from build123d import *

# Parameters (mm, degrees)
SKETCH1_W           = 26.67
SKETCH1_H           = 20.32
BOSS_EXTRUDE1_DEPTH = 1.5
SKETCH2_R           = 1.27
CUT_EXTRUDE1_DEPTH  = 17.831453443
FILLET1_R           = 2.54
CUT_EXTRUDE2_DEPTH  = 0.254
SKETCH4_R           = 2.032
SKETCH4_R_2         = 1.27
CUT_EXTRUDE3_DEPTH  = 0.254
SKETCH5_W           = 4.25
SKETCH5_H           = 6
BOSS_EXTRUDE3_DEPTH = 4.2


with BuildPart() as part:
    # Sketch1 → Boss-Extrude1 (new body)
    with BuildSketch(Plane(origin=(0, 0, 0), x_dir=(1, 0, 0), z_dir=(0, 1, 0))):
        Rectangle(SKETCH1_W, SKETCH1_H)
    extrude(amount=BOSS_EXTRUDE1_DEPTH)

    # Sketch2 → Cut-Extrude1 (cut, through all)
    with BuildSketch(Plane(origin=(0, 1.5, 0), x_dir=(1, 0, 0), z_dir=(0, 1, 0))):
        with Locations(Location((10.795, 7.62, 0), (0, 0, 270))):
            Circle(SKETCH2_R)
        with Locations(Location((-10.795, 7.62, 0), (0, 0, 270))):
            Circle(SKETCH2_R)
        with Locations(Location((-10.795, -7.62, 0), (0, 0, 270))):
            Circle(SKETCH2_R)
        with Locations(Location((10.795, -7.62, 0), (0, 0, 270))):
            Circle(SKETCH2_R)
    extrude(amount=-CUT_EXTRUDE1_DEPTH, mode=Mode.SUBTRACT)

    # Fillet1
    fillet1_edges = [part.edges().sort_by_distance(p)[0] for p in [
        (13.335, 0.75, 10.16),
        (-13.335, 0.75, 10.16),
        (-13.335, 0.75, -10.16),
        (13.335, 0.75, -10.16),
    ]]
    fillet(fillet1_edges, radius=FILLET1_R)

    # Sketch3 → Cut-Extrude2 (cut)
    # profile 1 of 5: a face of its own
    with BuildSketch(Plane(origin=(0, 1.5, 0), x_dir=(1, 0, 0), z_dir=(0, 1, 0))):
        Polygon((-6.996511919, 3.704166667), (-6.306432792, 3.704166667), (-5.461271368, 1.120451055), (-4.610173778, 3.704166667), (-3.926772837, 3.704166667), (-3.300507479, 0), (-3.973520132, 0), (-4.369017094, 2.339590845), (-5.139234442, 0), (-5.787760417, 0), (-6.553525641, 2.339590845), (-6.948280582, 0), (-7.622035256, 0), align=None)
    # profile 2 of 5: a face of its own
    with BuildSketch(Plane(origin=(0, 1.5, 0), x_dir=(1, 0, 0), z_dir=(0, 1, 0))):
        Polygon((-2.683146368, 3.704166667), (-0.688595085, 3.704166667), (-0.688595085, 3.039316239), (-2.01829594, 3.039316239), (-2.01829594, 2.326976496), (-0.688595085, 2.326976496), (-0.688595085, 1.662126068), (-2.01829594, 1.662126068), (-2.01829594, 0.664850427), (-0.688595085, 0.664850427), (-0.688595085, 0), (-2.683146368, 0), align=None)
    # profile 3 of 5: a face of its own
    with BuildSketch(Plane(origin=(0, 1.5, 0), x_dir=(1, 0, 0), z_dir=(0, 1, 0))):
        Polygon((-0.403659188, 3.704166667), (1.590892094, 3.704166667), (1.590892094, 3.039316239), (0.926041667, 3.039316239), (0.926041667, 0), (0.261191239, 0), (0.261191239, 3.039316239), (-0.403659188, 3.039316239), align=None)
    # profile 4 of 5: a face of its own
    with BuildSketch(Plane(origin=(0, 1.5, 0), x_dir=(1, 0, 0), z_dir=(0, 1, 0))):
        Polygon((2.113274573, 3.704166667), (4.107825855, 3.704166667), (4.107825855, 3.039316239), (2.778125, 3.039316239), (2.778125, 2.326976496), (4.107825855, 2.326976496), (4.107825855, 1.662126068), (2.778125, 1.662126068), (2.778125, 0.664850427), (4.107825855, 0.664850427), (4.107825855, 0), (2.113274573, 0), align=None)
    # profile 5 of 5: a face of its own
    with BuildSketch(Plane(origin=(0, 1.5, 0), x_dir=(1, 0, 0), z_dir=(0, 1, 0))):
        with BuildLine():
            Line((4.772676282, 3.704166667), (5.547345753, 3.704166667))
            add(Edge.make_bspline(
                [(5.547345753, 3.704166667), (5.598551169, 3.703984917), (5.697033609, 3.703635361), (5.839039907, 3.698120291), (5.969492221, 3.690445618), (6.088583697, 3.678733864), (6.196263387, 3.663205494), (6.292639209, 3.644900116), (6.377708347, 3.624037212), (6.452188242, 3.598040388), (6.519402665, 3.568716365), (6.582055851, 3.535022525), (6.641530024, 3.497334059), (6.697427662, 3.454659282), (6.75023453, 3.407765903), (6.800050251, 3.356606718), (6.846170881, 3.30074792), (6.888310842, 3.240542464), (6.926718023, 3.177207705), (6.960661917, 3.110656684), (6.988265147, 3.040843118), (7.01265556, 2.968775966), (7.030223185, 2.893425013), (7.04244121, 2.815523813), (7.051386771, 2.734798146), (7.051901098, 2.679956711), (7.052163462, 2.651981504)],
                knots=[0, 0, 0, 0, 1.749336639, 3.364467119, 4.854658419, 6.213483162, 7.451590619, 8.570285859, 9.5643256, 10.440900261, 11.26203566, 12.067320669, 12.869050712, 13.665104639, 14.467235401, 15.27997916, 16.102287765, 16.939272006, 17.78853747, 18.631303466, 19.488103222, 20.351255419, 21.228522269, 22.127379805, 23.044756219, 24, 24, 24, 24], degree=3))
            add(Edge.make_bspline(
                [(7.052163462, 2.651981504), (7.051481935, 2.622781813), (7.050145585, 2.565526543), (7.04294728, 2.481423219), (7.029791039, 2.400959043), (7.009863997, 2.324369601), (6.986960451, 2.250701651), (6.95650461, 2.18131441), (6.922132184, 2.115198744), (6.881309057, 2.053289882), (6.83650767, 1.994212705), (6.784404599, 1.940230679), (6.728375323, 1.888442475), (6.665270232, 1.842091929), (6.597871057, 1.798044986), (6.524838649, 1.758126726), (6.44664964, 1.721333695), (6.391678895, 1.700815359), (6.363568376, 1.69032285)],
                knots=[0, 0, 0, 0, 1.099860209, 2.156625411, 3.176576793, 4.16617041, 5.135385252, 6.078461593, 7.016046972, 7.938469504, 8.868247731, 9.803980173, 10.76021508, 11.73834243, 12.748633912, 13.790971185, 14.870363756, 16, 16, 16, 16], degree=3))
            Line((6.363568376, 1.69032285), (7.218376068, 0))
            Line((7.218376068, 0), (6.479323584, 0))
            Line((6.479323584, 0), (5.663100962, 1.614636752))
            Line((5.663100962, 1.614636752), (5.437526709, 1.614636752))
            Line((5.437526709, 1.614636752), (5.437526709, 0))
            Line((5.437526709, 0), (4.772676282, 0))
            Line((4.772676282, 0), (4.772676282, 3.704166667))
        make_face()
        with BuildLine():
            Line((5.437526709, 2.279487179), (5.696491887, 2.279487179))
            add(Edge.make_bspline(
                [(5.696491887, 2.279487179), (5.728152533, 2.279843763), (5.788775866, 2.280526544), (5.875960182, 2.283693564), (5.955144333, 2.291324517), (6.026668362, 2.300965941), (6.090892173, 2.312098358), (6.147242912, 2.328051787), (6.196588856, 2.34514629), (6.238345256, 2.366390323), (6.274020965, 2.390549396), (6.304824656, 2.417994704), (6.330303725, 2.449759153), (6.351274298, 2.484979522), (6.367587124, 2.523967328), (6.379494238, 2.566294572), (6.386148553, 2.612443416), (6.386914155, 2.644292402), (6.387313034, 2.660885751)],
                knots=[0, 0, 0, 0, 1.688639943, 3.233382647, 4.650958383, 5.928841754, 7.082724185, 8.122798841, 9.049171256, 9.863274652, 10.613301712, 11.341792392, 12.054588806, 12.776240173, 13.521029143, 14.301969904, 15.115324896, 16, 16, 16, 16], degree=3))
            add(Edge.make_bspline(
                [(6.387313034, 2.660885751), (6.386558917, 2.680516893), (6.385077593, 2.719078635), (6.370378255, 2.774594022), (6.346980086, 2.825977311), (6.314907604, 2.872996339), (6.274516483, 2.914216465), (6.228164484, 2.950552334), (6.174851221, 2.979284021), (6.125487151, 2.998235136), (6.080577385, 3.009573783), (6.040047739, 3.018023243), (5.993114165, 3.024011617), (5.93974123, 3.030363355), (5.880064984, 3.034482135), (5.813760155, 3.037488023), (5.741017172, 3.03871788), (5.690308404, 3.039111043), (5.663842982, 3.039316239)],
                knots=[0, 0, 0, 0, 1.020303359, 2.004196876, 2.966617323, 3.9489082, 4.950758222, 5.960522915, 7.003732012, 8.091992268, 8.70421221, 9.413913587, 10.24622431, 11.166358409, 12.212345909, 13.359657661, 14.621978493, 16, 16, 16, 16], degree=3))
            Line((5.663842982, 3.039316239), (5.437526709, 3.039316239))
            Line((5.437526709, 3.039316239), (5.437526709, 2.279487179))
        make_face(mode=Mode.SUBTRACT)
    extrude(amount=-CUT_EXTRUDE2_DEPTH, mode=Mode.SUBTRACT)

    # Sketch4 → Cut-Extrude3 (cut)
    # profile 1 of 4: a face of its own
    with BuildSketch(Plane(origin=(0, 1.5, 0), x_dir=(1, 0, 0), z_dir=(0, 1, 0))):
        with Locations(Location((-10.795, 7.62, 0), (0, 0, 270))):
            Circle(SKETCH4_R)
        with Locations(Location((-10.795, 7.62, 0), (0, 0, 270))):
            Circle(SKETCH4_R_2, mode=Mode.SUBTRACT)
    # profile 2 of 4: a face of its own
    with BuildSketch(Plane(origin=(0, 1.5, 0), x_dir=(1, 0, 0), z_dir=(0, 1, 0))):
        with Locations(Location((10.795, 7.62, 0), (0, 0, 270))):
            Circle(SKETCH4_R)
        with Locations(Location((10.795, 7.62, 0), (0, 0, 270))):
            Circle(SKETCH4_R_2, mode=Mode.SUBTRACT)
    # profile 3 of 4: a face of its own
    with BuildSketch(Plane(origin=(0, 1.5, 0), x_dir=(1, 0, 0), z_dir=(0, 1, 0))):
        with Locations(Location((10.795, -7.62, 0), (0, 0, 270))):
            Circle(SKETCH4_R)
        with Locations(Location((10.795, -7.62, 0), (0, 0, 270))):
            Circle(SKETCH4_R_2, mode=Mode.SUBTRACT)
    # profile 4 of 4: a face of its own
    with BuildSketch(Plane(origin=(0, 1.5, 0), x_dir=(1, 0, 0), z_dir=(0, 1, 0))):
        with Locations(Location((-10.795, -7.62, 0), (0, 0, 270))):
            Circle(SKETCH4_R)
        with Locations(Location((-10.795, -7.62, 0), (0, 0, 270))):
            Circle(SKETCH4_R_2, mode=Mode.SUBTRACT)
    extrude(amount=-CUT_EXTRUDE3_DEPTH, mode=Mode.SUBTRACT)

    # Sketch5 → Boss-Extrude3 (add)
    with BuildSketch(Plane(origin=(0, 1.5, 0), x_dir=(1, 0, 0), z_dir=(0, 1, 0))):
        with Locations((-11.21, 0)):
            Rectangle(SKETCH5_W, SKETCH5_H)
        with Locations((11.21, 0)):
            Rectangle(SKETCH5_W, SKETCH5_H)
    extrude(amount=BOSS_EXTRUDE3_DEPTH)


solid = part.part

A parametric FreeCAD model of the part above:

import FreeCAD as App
import Part
import Sketcher
Q = App.Units.Quantity


def edges_at(feature, points):
    """Names of the edges that pass closest to the given points."""
    edges = feature.Shape.Edges
    near = lambda p: min(range(len(edges)), key=lambda i: edges[i].distToShape(Part.Vertex(*p))[0])
    return sorted({f"Edge{near(p) + 1}" for p in points})


def add_polygon(sketch, points):
    """Adds a closed chain of lines whose ends are joined by coincident constraints."""
    first, n = sketch.GeometryCount, len(points)
    for a, b in zip(points, points[1:] + points[:1]):
        sketch.addGeometry(Part.LineSegment(App.Vector(*a, 0), App.Vector(*b, 0)), False)
    for i in range(n):
        sketch.addConstraint(Sketcher.Constraint("Coincident", first + i, 2, first + (i + 1) % n, 1))

doc = App.newDocument("Part")
params = doc.addObject("Spreadsheet::Sheet", "Params")
for row, (alias, value) in enumerate([
    ("sketch1_height", "0.8 in"),
    ("sketch1_width", "1.05 in"),
    ("pad1_length", "1.5 mm"),
    ("sketch2_diameter", "0.1 in"),
    ("fillet_radius", "0.1 in"),
    ("pocket2_length", "0.01 in"),
    ("sketch4_diameter", "0.1 in"),
    ("sketch4_diameter2", "0.16 in"),
    ("pocket3_length", "0.01 in"),
    ("pad2_length", "4.2 mm"),
], start=1):
    params.set(f"A{row}", alias)
    params.set(f"B{row}", "=" + value)
    params.setAlias(f"B{row}", alias)

body = doc.addObject("PartDesign::Body", "Body")

sketch1 = doc.addObject("Sketcher::SketchObject", "Sketch")
body.addObject(sketch1)
sketch1.AttachmentSupport = (doc.XZ_Plane, [""])
sketch1.MapMode = "FlatFace"
add_polygon(sketch1, [(-13, -10), (-13, 10), (13, 10), (13, -10)])
sketch1.addConstraint(Sketcher.Constraint("Vertical", 0))
sketch1.addConstraint(Sketcher.Constraint("Horizontal", 1))
sketch1.addConstraint(Sketcher.Constraint("Vertical", 2))
sketch1.addConstraint(Sketcher.Constraint("Horizontal", 3))
sketch1.addConstraint(Sketcher.Constraint("Symmetric", 0, 2, 2, 2, -1, 1))
sketch1.addConstraint(Sketcher.Constraint("DistanceY", 0, 1, 0, 2, Q("0.8 in")))
sketch1.addConstraint(Sketcher.Constraint("DistanceX", 1, 1, 1, 2, Q("1.05 in")))
sketch1.setExpression("Constraints[9]", "Params.sketch1_height")
sketch1.setExpression("Constraints[10]", "Params.sketch1_width")
pad1 = doc.addObject("PartDesign::Pad", "Pad")
body.addObject(pad1)
pad1.Profile = sketch1
pad1.setExpression("Length", "Params.pad1_length")
pad1.Reversed = True

sketch2 = doc.addObject("Sketcher::SketchObject", "Sketch001")
body.addObject(sketch2)
sketch2.AttachmentSupport = (doc.XZ_Plane, [""])
sketch2.MapMode = "FlatFace"
sketch2.AttachmentOffset = App.Placement(App.Vector(0, 0, -1.5), App.Rotation())
sketch2.addGeometry(Part.Circle(App.Vector(10.8, -7.6, 0), App.Vector(0, 0, 1), 1.3), False)
sketch2.addGeometry(Part.Circle(App.Vector(-10.8, -7.6, 0), App.Vector(0, 0, 1), 1.3), False)
sketch2.addGeometry(Part.Circle(App.Vector(-10.8, 7.6, 0), App.Vector(0, 0, 1), 1.3), False)
sketch2.addGeometry(Part.Circle(App.Vector(10.8, 7.6, 0), App.Vector(0, 0, 1), 1.3), False)
sketch2.addConstraint(Sketcher.Constraint("Equal", 0, 1))
sketch2.addConstraint(Sketcher.Constraint("Equal", 1, 2))
sketch2.addConstraint(Sketcher.Constraint("Equal", 2, 3))
sketch2.addConstraint(Sketcher.Constraint("Symmetric", 0, 3, 2, 3, -1, 1))
sketch2.addConstraint(Sketcher.Constraint("Symmetric", 1, 3, 3, 3, -1, 1))
sketch2.addConstraint(Sketcher.Constraint("Symmetric", 0, 3, 1, 3, -2))
sketch2.addConstraint(Sketcher.Constraint("Diameter", 0, Q("0.1 in")))
sketch2.addConstraint(Sketcher.Constraint("DistanceY", 0, 3, -1, 1, Q("0.3 in")))
sketch2.addConstraint(Sketcher.Constraint("DistanceX", 1, 3, 0, 3, Q("0.85 in")))
sketch2.setExpression("Constraints[6]", "Params.sketch2_diameter")
pocket1 = doc.addObject("PartDesign::Pocket", "Pocket")
body.addObject(pocket1)
pocket1.Profile = sketch2
pocket1.Type = "ThroughAll"
pocket1.Reversed = True
doc.recompute()

fillet = doc.addObject("PartDesign::Fillet", "Fillet")
body.addObject(fillet)
fillet.Base = (pocket1, edges_at(pocket1, [
    (13.335, 0.75, 10.16),
    (-13.335, 0.75, 10.16),
    (-13.335, 0.75, -10.16),
    (13.335, 0.75, -10.16),
]))
fillet.setExpression("Radius", "Params.fillet_radius")

sketch3 = doc.addObject("Sketcher::SketchObject", "Sketch002")
body.addObject(sketch3)
sketch3.AttachmentSupport = (doc.XZ_Plane, [""])
sketch3.MapMode = "FlatFace"
sketch3.AttachmentOffset = App.Placement(App.Vector(0, 0, -1.5), App.Rotation())
add_polygon(sketch3, [(-6.306433, -3.704167), (-6.996512, -3.704167), (-7.622035, 0), (-6.948281, 0), (-6.553526, -2.339591), (-5.78776, 0), (-5.139234, 0), (-4.369017, -2.339591), (-3.97352, 0), (-3.300507, 0), (-3.926773, -3.704167), (-4.610174, -3.704167), (-5.461271, -1.120451)])
add_polygon(sketch3, [(-0.688595, -3.704167), (-2.683146, -3.704167), (-2.683146, 0), (-0.688595, 0), (-0.688595, -0.66485), (-2.018296, -0.66485), (-2.018296, -1.662126), (-0.688595, -1.662126), (-0.688595, -2.326976), (-2.018296, -2.326976), (-2.018296, -3.039316), (-0.688595, -3.039316)])
add_polygon(sketch3, [(1.590892, -3.704167), (-0.403659, -3.704167), (-0.403659, -3.039316), (0.261191, -3.039316), (0.261191, 0), (0.926042, 0), (0.926042, -3.039316), (1.590892, -3.039316)])
add_polygon(sketch3, [(4.107826, -3.704167), (2.113275, -3.704167), (2.113275, 0), (4.107826, 0), (4.107826, -0.66485), (2.778125, -0.66485), (2.778125, -1.662126), (4.107826, -1.662126), (4.107826, -2.326976), (2.778125, -2.326976), (2.778125, -3.039316), (4.107826, -3.039316)])
sketch3.addGeometry(Part.LineSegment(App.Vector(5.547346, -3.704167, 0), App.Vector(4.772676, -3.704167, 0)), False)
sketch3.addGeometry(Part.LineSegment(App.Vector(4.772676, -3.704167, 0), App.Vector(4.772676, 0, 0)), False)
sketch3.addGeometry(Part.LineSegment(App.Vector(4.772676, 0, 0), App.Vector(5.437527, 0, 0)), False)
sketch3.addGeometry(Part.LineSegment(App.Vector(5.437527, 0, 0), App.Vector(5.437527, -1.614637, 0)), False)
sketch3.addGeometry(Part.LineSegment(App.Vector(5.437527, -1.614637, 0), App.Vector(5.663101, -1.614637, 0)), False)
sketch3.addGeometry(Part.LineSegment(App.Vector(5.663101, -1.614637, 0), App.Vector(6.479324, 0, 0)), False)
sketch3.addGeometry(Part.LineSegment(App.Vector(6.479324, 0, 0), App.Vector(7.218376, 0, 0)), False)
sketch3.addGeometry(Part.LineSegment(App.Vector(7.218376, 0, 0), App.Vector(6.363568, -1.690323, 0)), False)
sketch3.addGeometry(Part.BSplineCurve([App.Vector(7.052163, -2.651982, 0), App.Vector(7.051482, -2.622782, 0), App.Vector(7.050146, -2.565527, 0), App.Vector(7.042947, -2.481423, 0), App.Vector(7.029791, -2.400959, 0), App.Vector(7.009864, -2.32437, 0), App.Vector(6.98696, -2.250702, 0), App.Vector(6.956505, -2.181314, 0), App.Vector(6.922132, -2.115199, 0), App.Vector(6.881309, -2.05329, 0), App.Vector(6.836508, -1.994213, 0), App.Vector(6.784405, -1.940231, 0), App.Vector(6.728375, -1.888442, 0), App.Vector(6.66527, -1.842092, 0), App.Vector(6.597871, -1.798045, 0), App.Vector(6.524839, -1.758127, 0), App.Vector(6.44665, -1.721334, 0), App.Vector(6.391679, -1.700815, 0), App.Vector(6.363568, -1.690323, 0)], [4, 1, 1, 1, 1, 1, 1, 1, 1, 1, 1, 1, 1, 1, 1, 1, 4], [0, 1.099860209, 2.156625411, 3.176576793, 4.16617041, 5.135385252, 6.078461593, 7.016046972, 7.938469504, 8.868247731, 9.803980173, 10.76021508, 11.73834243, 12.748633912, 13.790971185, 14.870363756, 16], False, 3, [1, 1, 1, 1, 1, 1, 1, 1, 1, 1, 1, 1, 1, 1, 1, 1, 1, 1, 1], False), False)
sketch3.addGeometry(Part.BSplineCurve([App.Vector(5.547346, -3.704167, 0), App.Vector(5.598551, -3.703985, 0), App.Vector(5.697034, -3.703635, 0), App.Vector(5.83904, -3.69812, 0), App.Vector(5.969492, -3.690446, 0), App.Vector(6.088584, -3.678734, 0), App.Vector(6.196263, -3.663205, 0), App.Vector(6.292639, -3.6449, 0), App.Vector(6.377708, -3.624037, 0), App.Vector(6.452188, -3.59804, 0), App.Vector(6.519403, -3.568716, 0), App.Vector(6.582056, -3.535023, 0), App.Vector(6.64153, -3.497334, 0), App.Vector(6.697428, -3.454659, 0), App.Vector(6.750235, -3.407766, 0), App.Vector(6.80005, -3.356607, 0), App.Vector(6.846171, -3.300748, 0), App.Vector(6.888311, -3.240542, 0), App.Vector(6.926718, -3.177208, 0), App.Vector(6.960662, -3.110657, 0), App.Vector(6.988265, -3.040843, 0), App.Vector(7.012656, -2.968776, 0), App.Vector(7.030223, -2.893425, 0), App.Vector(7.042441, -2.815524, 0), App.Vector(7.051387, -2.734798, 0), App.Vector(7.051901, -2.679957, 0), App.Vector(7.052163, -2.651982, 0)], [4, 1, 1, 1, 1, 1, 1, 1, 1, 1, 1, 1, 1, 1, 1, 1, 1, 1, 1, 1, 1, 1, 1, 1, 4], [0, 1.749336639, 3.364467119, 4.854658419, 6.213483162, 7.451590619, 8.570285859, 9.5643256, 10.440900261, 11.26203566, 12.067320669, 12.869050712, 13.665104639, 14.467235401, 15.27997916, 16.102287765, 16.939272006, 17.78853747, 18.631303466, 19.488103222, 20.351255419, 21.228522269, 22.127379805, 23.044756219, 24], False, 3, [1, 1, 1, 1, 1, 1, 1, 1, 1, 1, 1, 1, 1, 1, 1, 1, 1, 1, 1, 1, 1, 1, 1, 1, 1, 1, 1], False), False)
sketch3.addGeometry(Part.LineSegment(App.Vector(5.437527, -2.279487, 0), App.Vector(5.437527, -3.039316, 0)), False)
sketch3.addGeometry(Part.LineSegment(App.Vector(5.437527, -3.039316, 0), App.Vector(5.663843, -3.039316, 0)), False)
sketch3.addGeometry(Part.BSplineCurve([App.Vector(6.387313, -2.660886, 0), App.Vector(6.386559, -2.680517, 0), App.Vector(6.385078, -2.719079, 0), App.Vector(6.370378, -2.774594, 0), App.Vector(6.34698, -2.825977, 0), App.Vector(6.314908, -2.872996, 0), App.Vector(6.274516, -2.914216, 0), App.Vector(6.228164, -2.950552, 0), App.Vector(6.174851, -2.979284, 0), App.Vector(6.125487, -2.998235, 0), App.Vector(6.080577, -3.009574, 0), App.Vector(6.040048, -3.018023, 0), App.Vector(5.993114, -3.024012, 0), App.Vector(5.939741, -3.030363, 0), App.Vector(5.880065, -3.034482, 0), App.Vector(5.81376, -3.037488, 0), App.Vector(5.741017, -3.038718, 0), App.Vector(5.690308, -3.039111, 0), App.Vector(5.663843, -3.039316, 0)], [4, 1, 1, 1, 1, 1, 1, 1, 1, 1, 1, 1, 1, 1, 1, 1, 4], [0, 1.020303359, 2.004196876, 2.966617323, 3.9489082, 4.950758222, 5.960522915, 7.003732012, 8.091992268, 8.70421221, 9.413913587, 10.24622431, 11.166358409, 12.212345909, 13.359657661, 14.621978493, 16], False, 3, [1, 1, 1, 1, 1, 1, 1, 1, 1, 1, 1, 1, 1, 1, 1, 1, 1, 1, 1], False), False)
sketch3.addGeometry(Part.BSplineCurve([App.Vector(5.696492, -2.279487, 0), App.Vector(5.728153, -2.279844, 0), App.Vector(5.788776, -2.280527, 0), App.Vector(5.87596, -2.283694, 0), App.Vector(5.955144, -2.291325, 0), App.Vector(6.026668, -2.300966, 0), App.Vector(6.090892, -2.312098, 0), App.Vector(6.147243, -2.328052, 0), App.Vector(6.196589, -2.345146, 0), App.Vector(6.238345, -2.36639, 0), App.Vector(6.274021, -2.390549, 0), App.Vector(6.304825, -2.417995, 0), App.Vector(6.330304, -2.449759, 0), App.Vector(6.351274, -2.48498, 0), App.Vector(6.367587, -2.523967, 0), App.Vector(6.379494, -2.566295, 0), App.Vector(6.386149, -2.612443, 0), App.Vector(6.386914, -2.644292, 0), App.Vector(6.387313, -2.660886, 0)], [4, 1, 1, 1, 1, 1, 1, 1, 1, 1, 1, 1, 1, 1, 1, 1, 4], [0, 1.688639943, 3.233382647, 4.650958383, 5.928841754, 7.082724185, 8.122798841, 9.049171256, 9.863274652, 10.613301712, 11.341792392, 12.054588806, 12.776240173, 13.521029143, 14.301969904, 15.115324896, 16], False, 3, [1, 1, 1, 1, 1, 1, 1, 1, 1, 1, 1, 1, 1, 1, 1, 1, 1, 1, 1], False), False)
sketch3.addGeometry(Part.LineSegment(App.Vector(5.696492, -2.279487, 0), App.Vector(5.437527, -2.279487, 0)), False)
sketch3.addConstraint(Sketcher.Constraint("Block", 53))
sketch3.addConstraint(Sketcher.Constraint("Block", 54))
sketch3.addConstraint(Sketcher.Constraint("Block", 57))
sketch3.addConstraint(Sketcher.Constraint("Block", 58))
sketch3.addConstraint(Sketcher.Constraint("Coincident", 45, 2, 46, 1))
sketch3.addConstraint(Sketcher.Constraint("Coincident", 46, 2, 47, 1))
sketch3.addConstraint(Sketcher.Constraint("Coincident", 47, 2, 48, 1))
sketch3.addConstraint(Sketcher.Constraint("Coincident", 48, 2, 49, 1))
sketch3.addConstraint(Sketcher.Constraint("Coincident", 49, 2, 50, 1))
sketch3.addConstraint(Sketcher.Constraint("Coincident", 50, 2, 51, 1))
sketch3.addConstraint(Sketcher.Constraint("Coincident", 51, 2, 52, 1))
sketch3.addConstraint(Sketcher.Constraint("Coincident", 52, 2, 53, 2))
sketch3.addConstraint(Sketcher.Constraint("Coincident", 54, 1, 45, 1))
sketch3.addConstraint(Sketcher.Constraint("Coincident", 55, 2, 56, 1))
sketch3.addConstraint(Sketcher.Constraint("Coincident", 56, 2, 57, 2))
sketch3.addConstraint(Sketcher.Constraint("Coincident", 58, 1, 59, 1))
sketch3.addConstraint(Sketcher.Constraint("Coincident", 59, 2, 55, 1))
sketch3.addConstraint(Sketcher.Constraint("Horizontal", 0))
sketch3.addConstraint(Sketcher.Constraint("Horizontal", 2))
sketch3.addConstraint(Sketcher.Constraint("Horizontal", 5))
sketch3.addConstraint(Sketcher.Constraint("Horizontal", 8))
sketch3.addConstraint(Sketcher.Constraint("Horizontal", 10))
sketch3.addConstraint(Sketcher.Constraint("Horizontal", 13))
sketch3.addConstraint(Sketcher.Constraint("Vertical", 14))
sketch3.addConstraint(Sketcher.Constraint("Horizontal", 15))
sketch3.addConstraint(Sketcher.Constraint("Vertical", 16))
sketch3.addConstraint(Sketcher.Constraint("Horizontal", 17))
sketch3.addConstraint(Sketcher.Constraint("Vertical", 18))
sketch3.addConstraint(Sketcher.Constraint("Horizontal", 19))
sketch3.addConstraint(Sketcher.Constraint("Vertical", 20))
sketch3.addConstraint(Sketcher.Constraint("Horizontal", 21))
sketch3.addConstraint(Sketcher.Constraint("Vertical", 22))
sketch3.addConstraint(Sketcher.Constraint("Horizontal", 23))
sketch3.addConstraint(Sketcher.Constraint("Vertical", 24))
sketch3.addConstraint(Sketcher.Constraint("Horizontal", 25))
sketch3.addConstraint(Sketcher.Constraint("Vertical", 26))
sketch3.addConstraint(Sketcher.Constraint("Horizontal", 27))
sketch3.addConstraint(Sketcher.Constraint("Vertical", 28))
sketch3.addConstraint(Sketcher.Constraint("Horizontal", 29))
sketch3.addConstraint(Sketcher.Constraint("Vertical", 30))
sketch3.addConstraint(Sketcher.Constraint("Horizontal", 31))
sketch3.addConstraint(Sketcher.Constraint("Vertical", 32))
sketch3.addConstraint(Sketcher.Constraint("Horizontal", 33))
sketch3.addConstraint(Sketcher.Constraint("Vertical", 34))
sketch3.addConstraint(Sketcher.Constraint("Horizontal", 35))
sketch3.addConstraint(Sketcher.Constraint("Vertical", 36))
sketch3.addConstraint(Sketcher.Constraint("Horizontal", 37))
sketch3.addConstraint(Sketcher.Constraint("Vertical", 38))
sketch3.addConstraint(Sketcher.Constraint("Horizontal", 39))
sketch3.addConstraint(Sketcher.Constraint("Vertical", 40))
sketch3.addConstraint(Sketcher.Constraint("Horizontal", 41))
sketch3.addConstraint(Sketcher.Constraint("Vertical", 42))
sketch3.addConstraint(Sketcher.Constraint("Horizontal", 43))
sketch3.addConstraint(Sketcher.Constraint("Vertical", 44))
sketch3.addConstraint(Sketcher.Constraint("Horizontal", 45))
sketch3.addConstraint(Sketcher.Constraint("Vertical", 46))
sketch3.addConstraint(Sketcher.Constraint("Horizontal", 47))
sketch3.addConstraint(Sketcher.Constraint("Vertical", 48))
sketch3.addConstraint(Sketcher.Constraint("Horizontal", 49))
sketch3.addConstraint(Sketcher.Constraint("Horizontal", 51))
sketch3.addConstraint(Sketcher.Constraint("Vertical", 55))
sketch3.addConstraint(Sketcher.Constraint("Horizontal", 56))
sketch3.addConstraint(Sketcher.Constraint("Horizontal", 59))
sketch3.addConstraint(Sketcher.Constraint("PointOnObject", 1, 2, -1))
sketch3.addConstraint(Sketcher.Constraint("PointOnObject", 4, 2, -1))
sketch3.addConstraint(Sketcher.Constraint("PointOnObject", 7, 2, -1))
sketch3.addConstraint(Sketcher.Constraint("PointOnObject", 14, 2, -1))
sketch3.addConstraint(Sketcher.Constraint("PointOnObject", 28, 2, -1))
sketch3.addConstraint(Sketcher.Constraint("PointOnObject", 34, 2, -1))
sketch3.addConstraint(Sketcher.Constraint("PointOnObject", 46, 2, -1))
sketch3.addConstraint(Sketcher.Constraint("PointOnObject", 50, 2, -1))
sketch3.addConstraint(Sketcher.Constraint("Horizontal", 3, 2, 6, 2))
sketch3.addConstraint(Sketcher.Constraint("Horizontal", 0, 2, 9, 2))
sketch3.addConstraint(Sketcher.Constraint("Horizontal", 12, 2, 13, 2))
sketch3.addConstraint(Sketcher.Constraint("Horizontal", 24, 2, 25, 2))
sketch3.addConstraint(Sketcher.Constraint("Horizontal", 23, 2, 26, 2))
sketch3.addConstraint(Sketcher.Constraint("Horizontal", 27, 2, 30, 2))
sketch3.addConstraint(Sketcher.Constraint("Horizontal", 32, 2, 33, 2))
sketch3.addConstraint(Sketcher.Constraint("Horizontal", 17, 2, 36, 2))
sketch3.addConstraint(Sketcher.Constraint("Horizontal", 19, 2, 38, 2))
sketch3.addConstraint(Sketcher.Constraint("Horizontal", 21, 2, 40, 2))
sketch3.addConstraint(Sketcher.Constraint("Horizontal", 31, 2, 42, 2))
sketch3.addConstraint(Sketcher.Constraint("Horizontal", 44, 2, 45, 2))
sketch3.addConstraint(Sketcher.Constraint("Horizontal", 43, 2, 55, 2))
sketch3.addConstraint(Sketcher.Constraint("Vertical", 16, 2, 19, 2))
sketch3.addConstraint(Sketcher.Constraint("Vertical", 18, 2, 21, 2))
sketch3.addConstraint(Sketcher.Constraint("Vertical", 20, 2, 23, 2))
sketch3.addConstraint(Sketcher.Constraint("Vertical", 36, 2, 39, 2))
sketch3.addConstraint(Sketcher.Constraint("Vertical", 38, 2, 41, 2))
sketch3.addConstraint(Sketcher.Constraint("Vertical", 40, 2, 43, 2))
sketch3.addConstraint(Sketcher.Constraint("Vertical", 48, 2, 55, 2))
sketch3.addConstraint(Sketcher.Constraint("Equal", 15, 25))
sketch3.addConstraint(Sketcher.Constraint("Equal", 27, 29))
sketch3.addConstraint(Sketcher.Constraint("Equal", 29, 31))
sketch3.addConstraint(Sketcher.Constraint("Equal", 25, 33))
sketch3.addConstraint(Sketcher.Constraint("Equal", 23, 37))
sketch3.addConstraint(Sketcher.Constraint("Equal", 31, 47))
sketch3.addConstraint(Sketcher.Constraint("Equal", 47, 16))
sketch3.addConstraint(Sketcher.Constraint("Equal", 16, 20))
sketch3.addConstraint(Sketcher.Constraint("Equal", 20, 24))
sketch3.addConstraint(Sketcher.Constraint("DistanceX", -1, 1, 37, 2, Q("0.109375 in")))
sketch3.addConstraint(Sketcher.Constraint("DistanceX", 11, 2, 14, 2, Q("0.109375 in")))
sketch3.addConstraint(Sketcher.Constraint("DistanceX", 10, 2, 10, 1, Q("0.683401 mm")))
sketch3.addConstraint(Sketcher.Constraint("DistanceX", 17, 2, 17, 1, Q("1.329701 mm")))
sketch3.addConstraint(Sketcher.Constraint("DistanceX", 0, 2, 0, 1, Q("0.690079 mm")))
sketch3.addConstraint(Sketcher.Constraint("DistanceX", 45, 2, 45, 1, Q("0.774669 mm")))
sketch3.addConstraint(Sketcher.Constraint("DistanceY", 22, 2, 22, 1, Q("0.71234 mm")))
sketch3.addConstraint(Sketcher.Constraint("DistanceX", -1, 1, 49, 2, Q("5.663101 mm")))
sketch3.addConstraint(Sketcher.Constraint("DistanceX", 1, 2, 5, 2, Q("2.482801 mm")))
sketch3.addConstraint(Sketcher.Constraint("DistanceX", 46, 2, 51, 2, Q("2.4457 mm")))
sketch3.addConstraint(Sketcher.Constraint("Distance", 1, Q("3.756612 mm")))
sketch3.addConstraint(Sketcher.Constraint("Distance", 3, Q("2.37266 mm")))
sketch3.addConstraint(Sketcher.Constraint("Distance", 6, Q("2.463112 mm")))
sketch3.addConstraint(Sketcher.Constraint("Distance", 50, Q("1.809218 mm")))
sketch3.addConstraint(Sketcher.Constraint("DistanceX", 2, 1, 2, 2, Q("0.673755 mm")))
sketch3.addConstraint(Sketcher.Constraint("DistanceX", 5, 1, 5, 2, Q("0.648526 mm")))
sketch3.addConstraint(Sketcher.Constraint("DistanceX", 8, 1, 8, 2, Q("0.673013 mm")))
sketch3.addConstraint(Sketcher.Constraint("DistanceX", 51, 1, 51, 2, Q("0.739052 mm")))
sketch3.addConstraint(Sketcher.Constraint("DistanceX", 0, 2, -1, 1, Q("6.996512 mm")))
sketch3.addConstraint(Sketcher.Constraint("DistanceY", 3, 2, -1, 1, Q("2.339591 mm")))
sketch3.addConstraint(Sketcher.Constraint("DistanceX", 7, 2, -1, 1, Q("3.97352 mm")))
sketch3.addConstraint(Sketcher.Constraint("DistanceX", 11, 2, -1, 1, Q("5.461271 mm")))
sketch3.addConstraint(Sketcher.Constraint("DistanceY", 11, 2, -1, 1, Q("1.120451 mm")))
sketch3.addConstraint(Sketcher.Constraint("DistanceX", 25, 2, -1, 1, Q("0.403659 mm")))
sketch3.addConstraint(Sketcher.Constraint("DistanceX", 0, 2, 9, 2, Q("3.069739 mm")))
pocket2 = doc.addObject("PartDesign::Pocket", "Pocket001")
body.addObject(pocket2)
pocket2.Profile = sketch3
pocket2.setExpression("Length", "Params.pocket2_length")
pocket2.Reversed = True

sketch4 = doc.addObject("Sketcher::SketchObject", "Sketch003")
body.addObject(sketch4)
sketch4.AttachmentSupport = (doc.XZ_Plane, [""])
sketch4.MapMode = "FlatFace"
sketch4.AttachmentOffset = App.Placement(App.Vector(0, 0, -1.5), App.Rotation())
sketch4.addGeometry(Part.Circle(App.Vector(-10.8, -7.6, 0), App.Vector(0, 0, 1), 2), False)
sketch4.addGeometry(Part.Circle(App.Vector(-10.8, -7.6, 0), App.Vector(0, 0, 1), 1.3), False)
sketch4.addGeometry(Part.Circle(App.Vector(10.8, -7.6, 0), App.Vector(0, 0, 1), 2), False)
sketch4.addGeometry(Part.Circle(App.Vector(10.8, -7.6, 0), App.Vector(0, 0, 1), 1.3), False)
sketch4.addGeometry(Part.Circle(App.Vector(10.8, 7.6, 0), App.Vector(0, 0, 1), 2), False)
sketch4.addGeometry(Part.Circle(App.Vector(10.8, 7.6, 0), App.Vector(0, 0, 1), 1.3), False)
sketch4.addGeometry(Part.Circle(App.Vector(-10.8, 7.6, 0), App.Vector(0, 0, 1), 2), False)
sketch4.addGeometry(Part.Circle(App.Vector(-10.8, 7.6, 0), App.Vector(0, 0, 1), 1.3), False)
sketch4.addConstraint(Sketcher.Constraint("Coincident", 1, 3, 0, 3))
sketch4.addConstraint(Sketcher.Constraint("Coincident", 3, 3, 2, 3))
sketch4.addConstraint(Sketcher.Constraint("Coincident", 5, 3, 4, 3))
sketch4.addConstraint(Sketcher.Constraint("Coincident", 7, 3, 6, 3))
sketch4.addConstraint(Sketcher.Constraint("Equal", 0, 2))
sketch4.addConstraint(Sketcher.Constraint("Equal", 1, 3))
sketch4.addConstraint(Sketcher.Constraint("Equal", 2, 4))
sketch4.addConstraint(Sketcher.Constraint("Equal", 3, 5))
sketch4.addConstraint(Sketcher.Constraint("Equal", 4, 6))
sketch4.addConstraint(Sketcher.Constraint("Equal", 5, 7))
sketch4.addConstraint(Sketcher.Constraint("Symmetric", 0, 3, 4, 3, -1, 1))
sketch4.addConstraint(Sketcher.Constraint("Symmetric", 2, 3, 6, 3, -1, 1))
sketch4.addConstraint(Sketcher.Constraint("Symmetric", 0, 3, 2, 3, -2))
sketch4.addConstraint(Sketcher.Constraint("Diameter", 1, Q("0.1 in")))
sketch4.addConstraint(Sketcher.Constraint("Diameter", 0, Q("0.16 in")))
sketch4.addConstraint(Sketcher.Constraint("DistanceY", 0, 3, -1, 1, Q("0.3 in")))
sketch4.addConstraint(Sketcher.Constraint("DistanceX", 0, 3, 2, 3, Q("0.85 in")))
sketch4.setExpression("Constraints[13]", "Params.sketch4_diameter")
sketch4.setExpression("Constraints[14]", "Params.sketch4_diameter2")
pocket3 = doc.addObject("PartDesign::Pocket", "Pocket002")
body.addObject(pocket3)
pocket3.Profile = sketch4
pocket3.setExpression("Length", "Params.pocket3_length")
pocket3.Reversed = True

sketch5 = doc.addObject("Sketcher::SketchObject", "Sketch004")
body.addObject(sketch5)
sketch5.AttachmentSupport = (doc.XZ_Plane, [""])
sketch5.MapMode = "FlatFace"
sketch5.AttachmentOffset = App.Placement(App.Vector(0, 0, -1.5), App.Rotation())
add_polygon(sketch5, [(-13.3, -3), (-13.3, 3), (-9.1, 3), (-9.1, -3)])
add_polygon(sketch5, [(9.1, -3), (9.1, 3), (13.3, 3), (13.3, -3)])
sketch5.addConstraint(Sketcher.Constraint("Vertical", 0))
sketch5.addConstraint(Sketcher.Constraint("Horizontal", 1))
sketch5.addConstraint(Sketcher.Constraint("Vertical", 2))
sketch5.addConstraint(Sketcher.Constraint("Horizontal", 3))
sketch5.addConstraint(Sketcher.Constraint("Vertical", 4))
sketch5.addConstraint(Sketcher.Constraint("Horizontal", 5))
sketch5.addConstraint(Sketcher.Constraint("Vertical", 6))
sketch5.addConstraint(Sketcher.Constraint("Horizontal", 7))
sketch5.addConstraint(Sketcher.Constraint("Symmetric", 2, 2, 4, 2, -1, 1))
sketch5.addConstraint(Sketcher.Constraint("Symmetric", 0, 2, 6, 2, -1, 1))
sketch5.addConstraint(Sketcher.Constraint("Horizontal", 1, 2, 4, 2))
sketch5.addConstraint(Sketcher.Constraint("DistanceX", 0, 2, 5, 2, Q("1.05 in")))
sketch5.addConstraint(Sketcher.Constraint("DistanceX", 1, 1, 1, 2, Q("4.25 mm")))
sketch5.addConstraint(Sketcher.Constraint("DistanceY", 0, 1, 0, 2, Q("6 mm")))
pad2 = doc.addObject("PartDesign::Pad", "Pad001")
body.addObject(pad2)
pad2.Profile = sketch5
pad2.setExpression("Length", "Params.pad2_length")
pad2.Reversed = True

doc.recompute()
